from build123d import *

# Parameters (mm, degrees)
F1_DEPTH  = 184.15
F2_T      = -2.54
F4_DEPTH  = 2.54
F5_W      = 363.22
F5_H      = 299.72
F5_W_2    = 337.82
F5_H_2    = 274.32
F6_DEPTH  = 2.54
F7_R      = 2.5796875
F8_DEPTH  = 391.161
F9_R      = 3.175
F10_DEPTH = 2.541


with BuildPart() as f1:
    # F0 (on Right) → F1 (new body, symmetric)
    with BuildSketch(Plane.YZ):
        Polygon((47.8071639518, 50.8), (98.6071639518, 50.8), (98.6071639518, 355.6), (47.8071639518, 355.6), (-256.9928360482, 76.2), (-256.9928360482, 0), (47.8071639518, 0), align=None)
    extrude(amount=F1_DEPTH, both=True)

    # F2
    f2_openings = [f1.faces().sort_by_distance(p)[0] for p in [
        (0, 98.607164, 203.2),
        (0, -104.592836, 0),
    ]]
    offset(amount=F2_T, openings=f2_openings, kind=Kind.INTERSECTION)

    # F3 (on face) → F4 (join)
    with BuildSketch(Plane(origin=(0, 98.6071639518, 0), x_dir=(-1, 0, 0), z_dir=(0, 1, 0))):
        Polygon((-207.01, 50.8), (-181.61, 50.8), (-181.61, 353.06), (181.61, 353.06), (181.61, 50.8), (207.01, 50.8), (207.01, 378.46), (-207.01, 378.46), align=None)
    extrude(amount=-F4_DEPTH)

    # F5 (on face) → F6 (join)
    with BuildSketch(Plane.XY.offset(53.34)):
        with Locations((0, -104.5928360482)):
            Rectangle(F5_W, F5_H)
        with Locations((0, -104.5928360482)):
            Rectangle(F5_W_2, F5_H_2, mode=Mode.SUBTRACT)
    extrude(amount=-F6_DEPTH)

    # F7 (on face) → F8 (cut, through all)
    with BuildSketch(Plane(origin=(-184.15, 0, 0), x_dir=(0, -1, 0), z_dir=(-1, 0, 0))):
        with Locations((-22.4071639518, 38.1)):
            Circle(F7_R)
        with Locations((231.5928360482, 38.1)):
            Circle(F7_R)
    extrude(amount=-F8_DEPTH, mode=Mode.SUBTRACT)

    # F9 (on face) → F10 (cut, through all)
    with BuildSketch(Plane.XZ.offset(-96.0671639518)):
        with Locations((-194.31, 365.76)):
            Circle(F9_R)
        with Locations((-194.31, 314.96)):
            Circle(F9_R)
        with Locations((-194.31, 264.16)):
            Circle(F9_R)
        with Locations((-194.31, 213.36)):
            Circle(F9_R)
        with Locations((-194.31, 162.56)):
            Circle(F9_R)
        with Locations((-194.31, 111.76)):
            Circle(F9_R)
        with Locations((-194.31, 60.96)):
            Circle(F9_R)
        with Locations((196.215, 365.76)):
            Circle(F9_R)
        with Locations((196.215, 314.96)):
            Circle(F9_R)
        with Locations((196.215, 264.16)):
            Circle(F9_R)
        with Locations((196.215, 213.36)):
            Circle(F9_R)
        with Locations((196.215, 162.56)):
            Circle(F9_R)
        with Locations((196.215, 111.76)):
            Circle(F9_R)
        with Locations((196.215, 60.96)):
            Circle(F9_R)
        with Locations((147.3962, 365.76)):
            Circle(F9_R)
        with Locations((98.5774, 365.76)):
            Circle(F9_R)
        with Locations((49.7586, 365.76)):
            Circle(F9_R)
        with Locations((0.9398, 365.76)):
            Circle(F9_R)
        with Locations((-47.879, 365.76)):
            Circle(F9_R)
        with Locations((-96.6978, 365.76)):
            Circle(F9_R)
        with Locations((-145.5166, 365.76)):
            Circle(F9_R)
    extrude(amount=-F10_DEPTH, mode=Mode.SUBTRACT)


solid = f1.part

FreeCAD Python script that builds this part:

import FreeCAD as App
import Part
import Sketcher

V = App.Vector
Q = App.Units.Quantity


def faces_at(feature, points):
    """Names of the faces that lie closest to the given points."""
    faces = feature.Shape.Faces
    near = lambda p: min(range(len(faces)), key=lambda i: faces[i].distToShape(Part.Vertex(*p))[0])
    return sorted({f"Face{near(p) + 1}" for p in points})


def add_polygon(sketch, points):
    """Adds a closed chain of lines whose ends are joined by coincident constraints."""
    first, n = sketch.GeometryCount, len(points)
    for a, b in zip(points, points[1:] + points[:1]):
        sketch.addGeometry(Part.LineSegment(App.Vector(*a, 0), App.Vector(*b, 0)), False)
    for i in range(n):
        sketch.addConstraint(Sketcher.Constraint("Coincident", first + i, 2, first + (i + 1) % n, 1))

doc = App.newDocument("Part")
body = doc.addObject("PartDesign::Body", "Body")

sketch1 = doc.addObject("Sketcher::SketchObject", "Sketch")
body.addObject(sketch1)
sketch1.AttachmentSupport = (doc.YZ_Plane, [""])
sketch1.MapMode = "FlatFace"
add_polygon(sketch1, [(48, 51), (99, 51), (99, 356), (48, 356), (-257, 76), (-257, 0), (48, 0)])
sketch1.addConstraint([
    Sketcher.Constraint("Horizontal", 0),
    Sketcher.Constraint("Vertical", 1),
    Sketcher.Constraint("Horizontal", 2),
    Sketcher.Constraint("Vertical", 4),
    Sketcher.Constraint("Horizontal", 5),
    Sketcher.Constraint("Vertical", 6),
    Sketcher.Constraint("PointOnObject", 4, 2, -1),
    Sketcher.Constraint("Vertical", 2, 2, 5, 2),
    Sketcher.Constraint("Equal", 5, 1),
    Sketcher.Constraint("Equal", 2, 6),
    Sketcher.Constraint("DistanceX", 0, 1, 0, 2, Q("2 in")),
    Sketcher.Constraint("DistanceX", 5, 1, 5, 2, Q("12 in")),
    Sketcher.Constraint("DistanceY", 4, 2, 4, 1, Q("3 in")),
    Sketcher.Constraint("DistanceX", -1, 1, 0, 2, Q("98.607164 mm")),
])
pad1 = doc.addObject("PartDesign::Pad", "Pad")
body.addObject(pad1)
pad1.Profile = sketch1
pad1.Length = Q("14.5 in")
pad1.Midplane = True
doc.recompute()

thickness = doc.addObject("PartDesign::Thickness", "Thickness")
body.addObject(thickness)
thickness.Base = (pad1, faces_at(pad1, [(0, 98.607, 203.2), (0, -104.593, 0)]))
thickness.Value = Q("0.1 in")
thickness.Reversed = True
thickness.Join = "Intersection"

sketch2 = doc.addObject("Sketcher::SketchObject", "Sketch001")
body.addObject(sketch2)
sketch2.AttachmentSupport = (doc.XZ_Plane, [""])
sketch2.MapMode = "FlatFace"
sketch2.AttachmentOffset = App.Placement(V(0, 0, -98.607164), App.Rotation())
add_polygon(sketch2, [(207, 51), (182, 51), (182, 353), (-182, 353), (-182, 51), (-207, 51), (-207, 378), (207, 378)])
sketch2.addConstraint([
    Sketcher.Constraint("Horizontal", 0),
    Sketcher.Constraint("Vertical", 1),
    Sketcher.Constraint("Horizontal", 2),
    Sketcher.Constraint("Vertical", 3),
    Sketcher.Constraint("Horizontal", 4),
    Sketcher.Constraint("Vertical", 5),
    Sketcher.Constraint("Horizontal", 6),
    Sketcher.Constraint("Vertical", 7),
    Sketcher.Constraint("Symmetric", 0, 2, 3, 2, -2),
    Sketcher.Constraint("Equal", 0, 4),
    Sketcher.Constraint("DistanceX", 0, 2, 0, 1, Q("1 in")),
    Sketcher.Constraint("DistanceX", 2, 2, 2, 1, Q("14.3 in")),
    Sketcher.Constraint("DistanceY", 1, 1, 1, 2, Q("11.9 in")),
    Sketcher.Constraint("DistanceY", 5, 1, 5, 2, Q("12.9 in")),
    Sketcher.Constraint("DistanceY", -1, 1, 0, 2, Q("2 in")),
])
pad2 = doc.addObject("PartDesign::Pad", "Pad001")
body.addObject(pad2)
pad2.Profile = sketch2
pad2.Length = Q("0.1 in")

sketch3 = doc.addObject("Sketcher::SketchObject", "Sketch002")
body.addObject(sketch3)
sketch3.AttachmentSupport = (doc.XY_Plane, [""])
sketch3.MapMode = "FlatFace"
sketch3.AttachmentOffset = App.Placement(V(0, 0, 2.1 * 25.4), App.Rotation())
add_polygon(sketch3, [(-182, 45), (-182, -254), (182, -254), (182, 45)])
add_polygon(sketch3, [(169, -242), (-169, -242), (-169, 33), (169, 33)])
sketch3.addConstraint([
    Sketcher.Constraint("Vertical", 0),
    Sketcher.Constraint("Horizontal", 1),
    Sketcher.Constraint("Vertical", 2),
    Sketcher.Constraint("Horizontal", 3),
    Sketcher.Constraint("Horizontal", 4),
    Sketcher.Constraint("Vertical", 5),
    Sketcher.Constraint("Horizontal", 6),
    Sketcher.Constraint("Vertical", 7),
    Sketcher.Constraint("DistanceX", 1, 1, 1, 2, Q("14.3 in")),
    Sketcher.Constraint("DistanceX", 4, 2, 4, 1, Q("13.3 in")),
    Sketcher.Constraint("DistanceY", 0, 2, 0, 1, Q("11.8 in")),
    Sketcher.Constraint("DistanceY", 5, 1, 5, 2, Q("10.8 in")),
    Sketcher.Constraint("DistanceX", 0, 2, 4, 2, Q("0.5 in")),
    Sketcher.Constraint("DistanceY", 0, 2, 4, 2, Q("0.5 in")),
    Sketcher.Constraint("DistanceX", 0, 2, -1, 1, Q("7.15 in")),
    Sketcher.Constraint("DistanceY", 0, 2, -1, 1, Q("254.452836 mm")),
])
pad3 = doc.addObject("PartDesign::Pad", "Pad002")
body.addObject(pad3)
pad3.Profile = sketch3
pad3.Length = Q("0.1 in")
pad3.Reversed = True

sketch4 = doc.addObject("Sketcher::SketchObject", "Sketch003")
body.addObject(sketch4)
sketch4.AttachmentSupport = (doc.YZ_Plane, [""])
sketch4.MapMode = "FlatFace"
sketch4.AttachmentOffset = App.Placement(V(0, 0, -7.25 * 25.4), App.Rotation())
sketch4.addGeometry([
    Part.Circle(V(22.4, 38.1, 0), V(0, 0, 1), 2.6),
    Part.Circle(V(-231.6, 38.1, 0), V(0, 0, 1), 2.6),
], False)
sketch4.addConstraint([
    Sketcher.Constraint("Equal", 0, 1),
    Sketcher.Constraint("Horizontal", 0, 3, 1, 3),
    Sketcher.Constraint("Diameter", 0, Q("0.203125 in")),
    Sketcher.Constraint("DistanceX", 1, 3, 0, 3, Q("10 in")),
    Sketcher.Constraint("DistanceY", -1, 1, 0, 3, Q("1.5 in")),
    Sketcher.Constraint("DistanceX", -1, 1, 0, 3, Q("22.407164 mm")),
])
pocket1 = doc.addObject("PartDesign::Pocket", "Pocket")
body.addObject(pocket1)
pocket1.Profile = sketch4
pocket1.Type = "ThroughAll"
pocket1.Reversed = True

sketch5 = doc.addObject("Sketcher::SketchObject", "Sketch004")
body.addObject(sketch5)
sketch5.AttachmentSupport = (doc.XZ_Plane, [""])
sketch5.MapMode = "FlatFace"
sketch5.AttachmentOffset = App.Placement(V(0, 0, -96.067164), App.Rotation())
sketch5.addGeometry([
    Part.Circle(V(-194.3, 365.8, 0), V(0, 0, 1), 3.2),
    Part.Circle(V(-194.3, 315, 0), V(0, 0, 1), 3.2),
    Part.Circle(V(-194.3, 264.2, 0), V(0, 0, 1), 3.2),
    Part.Circle(V(-194.3, 213.4, 0), V(0, 0, 1), 3.2),
    Part.Circle(V(-194.3, 162.6, 0), V(0, 0, 1), 3.2),
    Part.Circle(V(-194.3, 111.8, 0), V(0, 0, 1), 3.2),
    Part.Circle(V(-194.3, 61, 0), V(0, 0, 1), 3.2),
    Part.Circle(V(196.2, 365.8, 0), V(0, 0, 1), 3.2),
    Part.Circle(V(196.2, 315, 0), V(0, 0, 1), 3.2),
    Part.Circle(V(196.2, 264.2, 0), V(0, 0, 1), 3.2),
    Part.Circle(V(196.2, 213.4, 0), V(0, 0, 1), 3.2),
    Part.Circle(V(196.2, 162.6, 0), V(0, 0, 1), 3.2),
    Part.Circle(V(196.2, 111.8, 0), V(0, 0, 1), 3.2),
    Part.Circle(V(196.2, 61, 0), V(0, 0, 1), 3.2),
    Part.Circle(V(147.4, 365.8, 0), V(0, 0, 1), 3.2),
    Part.Circle(V(98.6, 365.8, 0), V(0, 0, 1), 3.2),
    Part.Circle(V(49.8, 365.8, 0), V(0, 0, 1), 3.2),
    Part.Circle(V(0.9, 365.8, 0), V(0, 0, 1), 3.2),
    Part.Circle(V(-47.9, 365.8, 0), V(0, 0, 1), 3.2),
    Part.Circle(V(-96.7, 365.8, 0), V(0, 0, 1), 3.2),
    Part.Circle(V(-145.5, 365.8, 0), V(0, 0, 1), 3.2),
], False)
sketch5.addConstraint([
    Sketcher.Constraint("Equal", 0, 1),
    Sketcher.Constraint("Equal", 1, 2),
    Sketcher.Constraint("Equal", 2, 3),
    Sketcher.Constraint("Equal", 3, 4),
    Sketcher.Constraint("Equal", 4, 5),
    Sketcher.Constraint("Equal", 5, 6),
    Sketcher.Constraint("Equal", 6, 7),
    Sketcher.Constraint("Equal", 7, 8),
    Sketcher.Constraint("Equal", 8, 9),
    Sketcher.Constraint("Equal", 9, 10),
    Sketcher.Constraint("Equal", 10, 11),
    Sketcher.Constraint("Equal", 11, 12),
    Sketcher.Constraint("Equal", 12, 13),
    Sketcher.Constraint("Equal", 13, 14),
    Sketcher.Constraint("Equal", 14, 15),
    Sketcher.Constraint("Equal", 15, 16),
    Sketcher.Constraint("Equal", 16, 17),
    Sketcher.Constraint("Equal", 17, 18),
    Sketcher.Constraint("Equal", 18, 19),
    Sketcher.Constraint("Equal", 19, 20),
    Sketcher.Constraint("Horizontal", 0, 3, 7, 3),
    Sketcher.Constraint("Horizontal", 1, 3, 8, 3),
    Sketcher.Constraint("Horizontal", 2, 3, 9, 3),
    Sketcher.Constraint("Horizontal", 3, 3, 10, 3),
    Sketcher.Constraint("Horizontal", 4, 3, 11, 3),
    Sketcher.Constraint("Horizontal", 5, 3, 12, 3),
    Sketcher.Constraint("Horizontal", 6, 3, 13, 3),
    Sketcher.Constraint("Horizontal", 7, 3, 14, 3),
    Sketcher.Constraint("Horizontal", 14, 3, 15, 3),
    Sketcher.Constraint("Horizontal", 15, 3, 16, 3),
    Sketcher.Constraint("Horizontal", 16, 3, 17, 3),
    Sketcher.Constraint("Horizontal", 17, 3, 18, 3),
    Sketcher.Constraint("Horizontal", 18, 3, 19, 3),
    Sketcher.Constraint("Horizontal", 19, 3, 20, 3),
    Sketcher.Constraint("Vertical", 0, 3, 1, 3),
    Sketcher.Constraint("Vertical", 1, 3, 2, 3),
    Sketcher.Constraint("Vertical", 2, 3, 3, 3),
    Sketcher.Constraint("Vertical", 3, 3, 4, 3),
    Sketcher.Constraint("Vertical", 4, 3, 5, 3),
    Sketcher.Constraint("Vertical", 5, 3, 6, 3),
    Sketcher.Constraint("Vertical", 7, 3, 8, 3),
    Sketcher.Constraint("Vertical", 8, 3, 9, 3),
    Sketcher.Constraint("Vertical", 9, 3, 10, 3),
    Sketcher.Constraint("Vertical", 10, 3, 11, 3),
    Sketcher.Constraint("Vertical", 11, 3, 12, 3),
    Sketcher.Constraint("Vertical", 12, 3, 13, 3),
    Sketcher.Constraint("Diameter", 0, Q("0.25 in")),
    Sketcher.Constraint("DistanceY", 1, 3, 0, 3, Q("2 in")),
    Sketcher.Constraint("DistanceY", 2, 3, 1, 3, Q("2 in")),
    Sketcher.Constraint("DistanceY", 3, 3, 2, 3, Q("2 in")),
    Sketcher.Constraint("DistanceY", 4, 3, 3, 3, Q("2 in")),
    Sketcher.Constraint("DistanceY", 5, 3, 4, 3, Q("2 in")),
    Sketcher.Constraint("DistanceY", 6, 3, 5, 3, Q("2 in")),
    Sketcher.Constraint("DistanceY", -1, 1, 0, 3, Q("14.4 in")),
    Sketcher.Constraint("DistanceX", 0, 3, -1, 1, Q("7.65 in")),
    Sketcher.Constraint("DistanceX", -1, 1, 7, 3, Q("7.725 in")),
    Sketcher.Constraint("DistanceX", -1, 1, 14, 3, Q("5.803 in")),
    Sketcher.Constraint("DistanceX", -1, 1, 15, 3, Q("3.881 in")),
    Sketcher.Constraint("DistanceX", -1, 1, 16, 3, Q("1.959 in")),
    Sketcher.Constraint("DistanceX", -1, 1, 17, 3, Q("0.037 in")),
    Sketcher.Constraint("DistanceX", 18, 3, -1, 1, Q("1.885 in")),
    Sketcher.Constraint("DistanceX", 19, 3, -1, 1, Q("3.807 in")),
    Sketcher.Constraint("DistanceX", 20, 3, -1, 1, Q("5.729 in")),
])
pocket2 = doc.addObject("PartDesign::Pocket", "Pocket001")
body.addObject(pocket2)
pocket2.Profile = sketch5
pocket2.Type = "ThroughAll"

doc.recompute()
